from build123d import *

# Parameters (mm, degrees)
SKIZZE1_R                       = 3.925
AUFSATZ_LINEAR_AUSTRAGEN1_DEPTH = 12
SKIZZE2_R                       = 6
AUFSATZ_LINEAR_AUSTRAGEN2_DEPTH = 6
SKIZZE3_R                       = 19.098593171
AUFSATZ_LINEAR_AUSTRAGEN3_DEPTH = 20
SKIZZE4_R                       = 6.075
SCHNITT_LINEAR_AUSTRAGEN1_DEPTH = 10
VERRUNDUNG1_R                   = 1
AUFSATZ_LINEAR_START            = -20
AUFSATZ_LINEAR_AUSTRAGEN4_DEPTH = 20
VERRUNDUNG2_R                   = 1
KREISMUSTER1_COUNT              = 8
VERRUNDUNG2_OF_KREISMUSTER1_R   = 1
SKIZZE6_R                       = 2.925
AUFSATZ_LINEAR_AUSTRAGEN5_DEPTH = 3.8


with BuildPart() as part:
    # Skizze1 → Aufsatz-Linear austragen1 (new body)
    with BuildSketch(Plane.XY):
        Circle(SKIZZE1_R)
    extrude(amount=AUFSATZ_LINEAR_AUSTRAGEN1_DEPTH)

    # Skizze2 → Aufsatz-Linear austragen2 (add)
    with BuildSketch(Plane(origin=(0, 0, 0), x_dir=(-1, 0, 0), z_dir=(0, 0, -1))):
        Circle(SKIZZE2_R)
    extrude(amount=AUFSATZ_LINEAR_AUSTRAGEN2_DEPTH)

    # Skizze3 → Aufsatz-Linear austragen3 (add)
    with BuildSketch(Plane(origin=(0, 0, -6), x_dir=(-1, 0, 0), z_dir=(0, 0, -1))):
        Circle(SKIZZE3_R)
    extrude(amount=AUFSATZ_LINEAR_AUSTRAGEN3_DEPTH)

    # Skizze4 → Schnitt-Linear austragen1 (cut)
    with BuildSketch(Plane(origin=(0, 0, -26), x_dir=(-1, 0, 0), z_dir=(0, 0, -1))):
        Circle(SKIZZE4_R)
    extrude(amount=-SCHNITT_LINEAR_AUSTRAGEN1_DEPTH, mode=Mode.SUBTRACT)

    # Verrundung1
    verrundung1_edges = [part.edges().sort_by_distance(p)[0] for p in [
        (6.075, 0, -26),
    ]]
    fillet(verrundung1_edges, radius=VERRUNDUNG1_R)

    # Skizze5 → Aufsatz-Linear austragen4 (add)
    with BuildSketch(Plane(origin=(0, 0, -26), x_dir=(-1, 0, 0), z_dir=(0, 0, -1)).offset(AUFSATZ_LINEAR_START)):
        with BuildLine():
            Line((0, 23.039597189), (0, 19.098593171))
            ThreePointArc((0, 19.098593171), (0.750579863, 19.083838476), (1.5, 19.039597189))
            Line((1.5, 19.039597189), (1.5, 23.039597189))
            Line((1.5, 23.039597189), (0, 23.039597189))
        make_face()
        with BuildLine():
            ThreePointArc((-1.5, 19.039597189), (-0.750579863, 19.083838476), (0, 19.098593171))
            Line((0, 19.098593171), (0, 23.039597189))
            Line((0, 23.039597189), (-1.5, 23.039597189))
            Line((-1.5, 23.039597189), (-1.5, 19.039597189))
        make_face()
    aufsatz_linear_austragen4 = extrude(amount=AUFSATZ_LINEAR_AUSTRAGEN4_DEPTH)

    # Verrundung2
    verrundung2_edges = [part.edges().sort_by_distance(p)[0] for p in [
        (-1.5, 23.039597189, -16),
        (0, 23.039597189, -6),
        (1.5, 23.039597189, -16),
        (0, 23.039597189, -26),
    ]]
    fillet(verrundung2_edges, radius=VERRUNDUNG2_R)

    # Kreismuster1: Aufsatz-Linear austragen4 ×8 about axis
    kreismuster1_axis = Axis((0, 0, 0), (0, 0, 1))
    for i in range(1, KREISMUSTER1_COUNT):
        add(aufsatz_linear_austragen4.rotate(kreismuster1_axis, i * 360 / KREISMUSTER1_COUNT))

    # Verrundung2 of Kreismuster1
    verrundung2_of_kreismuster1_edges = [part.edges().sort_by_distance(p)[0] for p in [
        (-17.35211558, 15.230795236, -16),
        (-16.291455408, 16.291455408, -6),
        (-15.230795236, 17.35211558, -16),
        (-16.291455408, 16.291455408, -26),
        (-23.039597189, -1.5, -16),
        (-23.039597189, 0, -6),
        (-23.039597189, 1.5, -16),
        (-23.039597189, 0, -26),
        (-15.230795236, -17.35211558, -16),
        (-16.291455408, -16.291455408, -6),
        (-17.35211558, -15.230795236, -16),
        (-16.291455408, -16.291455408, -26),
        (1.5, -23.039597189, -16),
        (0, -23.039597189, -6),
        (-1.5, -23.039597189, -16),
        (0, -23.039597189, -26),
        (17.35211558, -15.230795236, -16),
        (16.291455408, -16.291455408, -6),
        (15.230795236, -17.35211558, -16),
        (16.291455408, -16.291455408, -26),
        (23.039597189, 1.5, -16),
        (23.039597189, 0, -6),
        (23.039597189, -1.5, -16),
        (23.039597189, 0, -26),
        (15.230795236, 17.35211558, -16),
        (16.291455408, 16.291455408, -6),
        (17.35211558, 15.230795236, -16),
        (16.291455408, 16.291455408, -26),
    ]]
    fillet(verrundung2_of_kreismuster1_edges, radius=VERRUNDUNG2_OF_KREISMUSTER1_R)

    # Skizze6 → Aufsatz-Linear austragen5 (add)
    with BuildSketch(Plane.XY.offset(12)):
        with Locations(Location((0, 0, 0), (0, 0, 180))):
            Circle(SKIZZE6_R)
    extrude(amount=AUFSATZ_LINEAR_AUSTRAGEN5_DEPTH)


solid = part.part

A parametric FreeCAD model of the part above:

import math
import FreeCAD as App
import Part
import Sketcher
from FreeCAD import Vector
Q = App.Units.Quantity


def edges_at(feature, points):
    """Names of the edges that pass closest to the given points."""
    edges = feature.Shape.Edges
    near = lambda p: min(range(len(edges)), key=lambda i: edges[i].distToShape(Part.Vertex(*p))[0])
    return sorted({f"Edge{near(p) + 1}" for p in points})

doc = App.newDocument("Part")
params = doc.addObject("Spreadsheet::Sheet", "Params")
for row, (alias, value) in enumerate([
    ("sketch1_diameter", "7.85 mm"),
    ("pad1_length", "12 mm"),
    ("sketch2_diameter", "12 mm"),
    ("pad2_length", "6 mm"),
    ("pad3_length", "20 mm"),
    ("sketch4_diameter", "12.15 mm"),
    ("pocket1_length", "10 mm"),
    ("fillet_radius", "1 mm"),
    ("sketch5_width", "3 mm"),
    ("sketch5_height", "4 mm"),
    ("pad4_length", "20 mm"),
    ("fillet2_radius", "1 mm"),
    ("fillet3_radius", "1 mm"),
    ("sketch6_diameter", "5.85 mm"),
    ("pad5_length", "3.8 mm"),
], start=1):
    params.set(f"A{row}", alias)
    params.set(f"B{row}", "=" + value)
    params.setAlias(f"B{row}", alias)

body = doc.addObject("PartDesign::Body", "Body")

sketch1 = body.newObject("Sketcher::SketchObject", "Sketch")
sketch1.AttachmentSupport = (doc.getObject("XY_Plane"), [""])
sketch1.MapMode = "FlatFace"
sketch1.addGeometry(Part.Circle(Vector(0, 0, 0), Vector(0, 0, 1), 3.925), False)
sketch1.addConstraint([
    Sketcher.Constraint("Coincident", 0, 3, -1, 1),
    Sketcher.Constraint("Diameter", 0, Q("7.85 mm")),
])
sketch1.setExpression("Constraints[1]", "Params.sketch1_diameter")
pad1 = body.newObject("PartDesign::Pad", "Pad")
pad1.Profile = sketch1
pad1.setExpression("Length", "Params.pad1_length")

sketch2 = body.newObject("Sketcher::SketchObject", "Sketch001")
sketch2.AttachmentSupport = (doc.getObject("XY_Plane"), [""])
sketch2.MapMode = "FlatFace"
sketch2.addGeometry(Part.Circle(Vector(0, 0, 0), Vector(0, 0, 1), 6), False)
sketch2.addConstraint([
    Sketcher.Constraint("Coincident", 0, 3, -1, 1),
    Sketcher.Constraint("Diameter", 0, Q("12 mm")),
])
sketch2.setExpression("Constraints[1]", "Params.sketch2_diameter")
pad2 = body.newObject("PartDesign::Pad", "Pad001")
pad2.Profile = sketch2
pad2.setExpression("Length", "Params.pad2_length")
pad2.Reversed = True

sketch3 = body.newObject("Sketcher::SketchObject", "Sketch002")
sketch3.AttachmentSupport = (doc.getObject("XY_Plane"), [""])
sketch3.MapMode = "FlatFace"
sketch3.AttachmentOffset = App.Placement(Vector(0, 0, -6), App.Rotation())
sketch3.addGeometry(Part.Circle(Vector(0, 0, 0), Vector(0, 0, 1), 19.098593), False)
sketch3.addConstraint([
    Sketcher.Constraint("Coincident", 0, 3, -1, 1),
    Sketcher.Constraint("Diameter", 0, Q("38.197186 mm")),
])
pad3 = body.newObject("PartDesign::Pad", "Pad002")
pad3.Profile = sketch3
pad3.setExpression("Length", "Params.pad3_length")
pad3.Reversed = True

sketch4 = body.newObject("Sketcher::SketchObject", "Sketch003")
sketch4.AttachmentSupport = (doc.getObject("XY_Plane"), [""])
sketch4.MapMode = "FlatFace"
sketch4.AttachmentOffset = App.Placement(Vector(0, 0, -26), App.Rotation())
sketch4.addGeometry(Part.Circle(Vector(0, 0, 0), Vector(0, 0, 1), 6.075), False)
sketch4.addConstraint([
    Sketcher.Constraint("Coincident", 0, 3, -1, 1),
    Sketcher.Constraint("Diameter", 0, Q("12.15 mm")),
])
sketch4.setExpression("Constraints[1]", "Params.sketch4_diameter")
pocket1 = body.newObject("PartDesign::Pocket", "Pocket")
pocket1.Profile = sketch4
pocket1.setExpression("Length", "Params.pocket1_length")
pocket1.Reversed = True
doc.recompute()

fillet = body.newObject("PartDesign::Fillet", "Fillet")
fillet.Base = (pocket1, edges_at(pocket1, [(6.075, 0, -26)]))
fillet.setExpression("Radius", "Params.fillet_radius")

sketch5 = body.newObject("Sketcher::SketchObject", "Sketch004")
sketch5.AttachmentSupport = (doc.getObject("XY_Plane"), [""])
sketch5.MapMode = "FlatFace"
sketch5.AttachmentOffset = App.Placement(Vector(0, 0, -6), App.Rotation())
sketch5.addGeometry([
    Part.ArcOfCircle(Part.Circle(Vector(0, 0, 0), Vector(0, 0, 1), 19.098593), math.radians(90), math.radians(94.504639)),
    Part.LineSegment(Vector(-1.5, 19.039597, 0), Vector(-1.5, 23.039597, 0)),
    Part.LineSegment(Vector(-1.5, 23.039597, 0), Vector(1.5, 23.039597, 0)),
    Part.LineSegment(Vector(1.5, 23.039597, 0), Vector(1.5, 19.039597, 0)),
    Part.ArcOfCircle(Part.Circle(Vector(0, 0, 0), Vector(0, 0, 1), 19.098593), math.radians(85.495361), math.radians(90)),
], False)
sketch5.addConstraint([
    Sketcher.Constraint("Coincident", 0, 2, 1, 1),
    Sketcher.Constraint("Coincident", 1, 2, 2, 1),
    Sketcher.Constraint("Coincident", 2, 2, 3, 1),
    Sketcher.Constraint("Coincident", 3, 2, 4, 1),
    Sketcher.Constraint("Tangent", 4, 2, 0, 1),
    Sketcher.Constraint("Vertical", 1),
    Sketcher.Constraint("Horizontal", 2),
    Sketcher.Constraint("Vertical", 3),
    Sketcher.Constraint("Coincident", 0, 3, -1, 1),
    Sketcher.Constraint("Equal", 0, 4),
    Sketcher.Constraint("PointOnObject", 4, 2, -2),
    Sketcher.Constraint("Horizontal", 0, 2, 3, 2),
    Sketcher.Constraint("DistanceX", 2, 1, 2, 2, Q("3 mm")),
    Sketcher.Constraint("DistanceY", 1, 1, 1, 2, Q("4 mm")),
    Sketcher.Constraint("Radius", 0, Q("19.098593 mm")),
])
sketch5.setExpression("Constraints[12]", "Params.sketch5_width")
sketch5.setExpression("Constraints[13]", "Params.sketch5_height")
pad4 = body.newObject("PartDesign::Pad", "Pad003")
pad4.Profile = sketch5
pad4.setExpression("Length", "Params.pad4_length")
pad4.Reversed = True
doc.recompute()

fillet2 = body.newObject("PartDesign::Fillet", "Fillet001")
fillet2.Base = (pad4, edges_at(pad4, [
    (-1.5, 23.04, -16),
    (0, 23.04, -6),
    (1.5, 23.04, -16),
    (0, 23.04, -26),
]))
fillet2.setExpression("Radius", "Params.fillet2_radius")
doc.recompute()

polarpattern = body.newObject("PartDesign::PolarPattern", "PolarPattern")
polarpattern.Originals = [pad4]
polarpattern.Axis = (doc.getObject("Z_Axis"), [""])
polarpattern.Angle = 360
polarpattern.Occurrences = 8
body.Tip = polarpattern
doc.recompute()

fillet3 = body.newObject("PartDesign::Fillet", "Fillet002")
fillet3.Base = (polarpattern, edges_at(polarpattern, [
    (-17.352, 15.231, -16),
    (-16.291, 16.291, -6),
    (-15.231, 17.352, -16),
    (-16.291, 16.291, -26),
    (-23.04, -1.5, -16),
    (-23.04, 0, -6),
    (-23.04, 1.5, -16),
    (-23.04, 0, -26),
    (-15.231, -17.352, -16),
    (-16.291, -16.291, -6),
    (-17.352, -15.231, -16),
    (-16.291, -16.291, -26),
    (1.5, -23.04, -16),
    (0, -23.04, -6),
    (-1.5, -23.04, -16),
    (0, -23.04, -26),
    (17.352, -15.231, -16),
    (16.291, -16.291, -6),
    (15.231, -17.352, -16),
    (16.291, -16.291, -26),
    (23.04, 1.5, -16),
    (23.04, 0, -6),
    (23.04, -1.5, -16),
    (23.04, 0, -26),
    (15.231, 17.352, -16),
    (16.291, 16.291, -6),
    (17.352, 15.231, -16),
    (16.291, 16.291, -26),
]))
fillet3.setExpression("Radius", "Params.fillet3_radius")

sketch6 = body.newObject("Sketcher::SketchObject", "Sketch005")
sketch6.AttachmentSupport = (doc.getObject("XY_Plane"), [""])
sketch6.MapMode = "FlatFace"
sketch6.AttachmentOffset = App.Placement(Vector(0, 0, 12), App.Rotation())
sketch6.addGeometry(Part.Circle(Vector(0, 0, 0), Vector(0, 0, 1), 2.925), False)
sketch6.addConstraint([
    Sketcher.Constraint("Coincident", 0, 3, -1, 1),
    Sketcher.Constraint("Diameter", 0, Q("5.85 mm")),
])
sketch6.setExpression("Constraints[1]", "Params.sketch6_diameter")
pad5 = body.newObject("PartDesign::Pad", "Pad004")
pad5.Profile = sketch6
pad5.setExpression("Length", "Params.pad5_length")

doc.recompute()
